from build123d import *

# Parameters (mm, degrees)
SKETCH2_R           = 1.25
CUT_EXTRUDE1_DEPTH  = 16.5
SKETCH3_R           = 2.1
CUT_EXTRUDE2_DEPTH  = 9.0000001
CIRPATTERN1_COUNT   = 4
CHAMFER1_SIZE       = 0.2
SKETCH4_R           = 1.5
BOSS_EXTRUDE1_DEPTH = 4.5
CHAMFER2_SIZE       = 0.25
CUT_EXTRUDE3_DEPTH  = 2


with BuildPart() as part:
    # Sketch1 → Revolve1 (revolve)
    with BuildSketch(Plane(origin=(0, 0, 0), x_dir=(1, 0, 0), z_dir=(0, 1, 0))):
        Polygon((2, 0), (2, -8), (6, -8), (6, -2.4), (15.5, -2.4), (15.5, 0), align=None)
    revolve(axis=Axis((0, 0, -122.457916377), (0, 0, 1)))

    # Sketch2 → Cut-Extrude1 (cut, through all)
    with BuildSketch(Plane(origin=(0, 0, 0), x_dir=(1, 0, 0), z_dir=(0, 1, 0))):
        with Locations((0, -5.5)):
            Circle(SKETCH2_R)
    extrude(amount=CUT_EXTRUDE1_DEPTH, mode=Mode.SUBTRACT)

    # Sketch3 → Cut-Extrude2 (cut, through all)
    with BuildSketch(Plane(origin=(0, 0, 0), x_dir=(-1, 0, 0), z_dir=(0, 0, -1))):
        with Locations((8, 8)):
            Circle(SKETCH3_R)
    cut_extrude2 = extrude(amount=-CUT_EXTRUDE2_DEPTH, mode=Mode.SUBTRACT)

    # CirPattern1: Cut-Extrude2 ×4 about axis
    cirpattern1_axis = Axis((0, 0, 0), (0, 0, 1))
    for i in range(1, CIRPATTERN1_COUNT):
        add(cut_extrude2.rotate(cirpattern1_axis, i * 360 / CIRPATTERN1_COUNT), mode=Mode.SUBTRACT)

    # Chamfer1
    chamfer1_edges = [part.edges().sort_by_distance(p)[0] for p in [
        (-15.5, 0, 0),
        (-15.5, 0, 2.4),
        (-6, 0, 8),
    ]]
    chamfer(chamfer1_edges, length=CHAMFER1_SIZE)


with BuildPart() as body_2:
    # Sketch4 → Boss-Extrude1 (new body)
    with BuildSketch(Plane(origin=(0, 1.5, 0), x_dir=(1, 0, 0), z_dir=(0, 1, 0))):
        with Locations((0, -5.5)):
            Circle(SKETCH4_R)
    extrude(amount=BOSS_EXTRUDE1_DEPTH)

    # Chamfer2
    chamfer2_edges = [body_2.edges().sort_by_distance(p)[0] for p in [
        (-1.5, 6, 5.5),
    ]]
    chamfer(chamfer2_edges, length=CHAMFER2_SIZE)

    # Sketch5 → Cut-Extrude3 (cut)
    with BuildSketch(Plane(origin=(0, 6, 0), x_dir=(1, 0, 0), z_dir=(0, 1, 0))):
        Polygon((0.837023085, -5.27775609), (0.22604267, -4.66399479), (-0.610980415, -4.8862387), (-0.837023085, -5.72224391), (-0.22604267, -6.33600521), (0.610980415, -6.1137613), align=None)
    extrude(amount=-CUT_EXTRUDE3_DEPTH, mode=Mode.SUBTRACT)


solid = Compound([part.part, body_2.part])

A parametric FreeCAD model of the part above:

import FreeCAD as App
import Part
import Sketcher

V = App.Vector
Q = App.Units.Quantity


def edges_at(feature, points):
    """Names of the edges that pass closest to the given points."""
    edges = feature.Shape.Edges
    near = lambda p: min(range(len(edges)), key=lambda i: edges[i].distToShape(Part.Vertex(*p))[0])
    return sorted({f"Edge{near(p) + 1}" for p in points})

doc = App.newDocument("Part")
body = doc.addObject("PartDesign::Body", "Body")

# Sketch on XZ plane
sketch1 = body.newObject("Sketcher::SketchObject", "Sketch")
sketch1.AttachmentSupport = (doc.getObject("XZ_Plane"), [""])
sketch1.MapMode = "FlatFace"
sketch1.addGeometry([
    Part.LineSegment(V(2, 0, 0), V(2, 8, 0)),  # 0
    Part.LineSegment(V(2, 8, 0), V(6, 8, 0)),  # 1
    Part.LineSegment(V(6, 8, 0), V(6, 2.4, 0)),  # 2
    Part.LineSegment(V(6, 2.4, 0), V(15.5, 2.4, 0)),  # 3
    Part.LineSegment(V(15.5, 2.4, 0), V(15.5, 0, 0)),  # 4
    Part.LineSegment(V(15.5, 0, 0), V(2, 0, 0)),  # 5
], False)
sketch1.addConstraint([
    Sketcher.Constraint("Coincident", 0, 2, 1, 1),
    Sketcher.Constraint("Coincident", 1, 2, 2, 1),
    Sketcher.Constraint("Coincident", 2, 2, 3, 1),
    Sketcher.Constraint("Coincident", 3, 2, 4, 1),
    Sketcher.Constraint("Coincident", 4, 2, 5, 1),
    Sketcher.Constraint("Coincident", 5, 2, 0, 1),
    Sketcher.Constraint("Vertical", 0),
    Sketcher.Constraint("Horizontal", 1),
    Sketcher.Constraint("Vertical", 2),
    Sketcher.Constraint("Horizontal", 3),
    Sketcher.Constraint("Vertical", 4),
    Sketcher.Constraint("Horizontal", 5),
    Sketcher.Constraint("PointOnObject", 4, 2, -1),
    Sketcher.Constraint("DistanceX", 1, 1, 1, 2, Q("4 mm")),
    Sketcher.Constraint("DistanceY", 0, 1, 0, 2, Q("8 mm")),
    Sketcher.Constraint("DistanceX", 3, 1, 3, 2, Q("9.5 mm")),
    Sketcher.Constraint("DistanceY", 2, 2, 2, 1, Q("5.6 mm")),
    Sketcher.Constraint("DistanceX", -1, 1, 0, 2, Q("2 mm")),
])
revolution = body.newObject("PartDesign::Revolution", "Revolution")
revolution.Profile = sketch1
revolution.ReferenceAxis = (sketch1, ["V_Axis"])
revolution.Angle = 360

# Sketch on XZ plane
sketch2 = body.newObject("Sketcher::SketchObject", "Sketch001")
sketch2.AttachmentSupport = (doc.getObject("XZ_Plane"), [""])
sketch2.MapMode = "FlatFace"
sketch2.addGeometry(Part.Circle(V(0, 5.5, 0), V(0, 0, 1), 1.2), False)
sketch2.addConstraint([
    Sketcher.Constraint("PointOnObject", 0, 3, -2),
    Sketcher.Constraint("Diameter", 0, Q("2.5 mm")),
    Sketcher.Constraint("DistanceY", -1, 1, 0, 3, Q("5.5 mm")),
])
pocket1 = body.newObject("PartDesign::Pocket", "Pocket")
pocket1.Profile = sketch2
pocket1.Type = "ThroughAll"

# Sketch on XY plane
sketch3 = body.newObject("Sketcher::SketchObject", "Sketch002")
sketch3.AttachmentSupport = (doc.getObject("XY_Plane"), [""])
sketch3.MapMode = "FlatFace"
sketch3.addGeometry(Part.Circle(V(-8, 8, 0), V(0, 0, 1), 2.1), False)
sketch3.addConstraint([
    Sketcher.Constraint("Diameter", 0, Q("4.2 mm")),
    Sketcher.Constraint("DistanceX", 0, 3, -1, 1, Q("8 mm")),
    Sketcher.Constraint("DistanceY", -1, 1, 0, 3, Q("8 mm")),
])
pocket2 = body.newObject("PartDesign::Pocket", "Pocket001")
pocket2.Profile = sketch3
pocket2.Type = "ThroughAll"
pocket2.Reversed = True
doc.recompute()

polarpattern = body.newObject("PartDesign::PolarPattern", "PolarPattern")
polarpattern.Originals = [pocket2]
polarpattern.Axis = (doc.getObject("Z_Axis"), [""])
polarpattern.Angle = 360
polarpattern.Occurrences = 4
body.Tip = polarpattern
doc.recompute()

chamfer = body.newObject("PartDesign::Chamfer", "Chamfer")
chamfer.Base = (polarpattern, edges_at(polarpattern, [(-15.5, 0, 0), (-15.5, 0, 2.4), (-6, 0, 8)]))
chamfer.Size = 0.2
body2 = doc.addObject("PartDesign::Body", "Body001")

# Sketch on XZ plane
sketch4 = body2.newObject("Sketcher::SketchObject", "Sketch003")
sketch4.AttachmentSupport = (doc.getObject("XZ_Plane001"), [""])
sketch4.MapMode = "FlatFace"
sketch4.AttachmentOffset = App.Placement(V(0, 0, -1.5), App.Rotation())
sketch4.addGeometry(Part.Circle(V(0, 5.5, 0), V(0, 0, 1), 1.5), False)
sketch4.addConstraint([
    Sketcher.Constraint("PointOnObject", 0, 3, -2),
    Sketcher.Constraint("Diameter", 0, Q("3 mm")),
    Sketcher.Constraint("DistanceY", -1, 1, 0, 3, Q("5.5 mm")),
])
pad1 = body2.newObject("PartDesign::Pad", "Pad")
pad1.Profile = sketch4
pad1.Length = 4.5
pad1.Reversed = True
doc.recompute()

chamfer2 = body2.newObject("PartDesign::Chamfer", "Chamfer001")
chamfer2.Base = (pad1, edges_at(pad1, [(-1.5, 6, 5.5)]))
chamfer2.Size = 0.25

# Sketch on XZ plane
sketch5 = body2.newObject("Sketcher::SketchObject", "Sketch004")
sketch5.AttachmentSupport = (doc.getObject("XZ_Plane001"), [""])
sketch5.MapMode = "FlatFace"
sketch5.AttachmentOffset = App.Placement(V(0, 0, -6), App.Rotation())
sketch5.addGeometry([
    Part.LineSegment(V(0.8, 5.3, 0), V(0.2, 4.7, 0)),  # 0
    Part.LineSegment(V(0.2, 4.7, 0), V(-0.6, 4.9, 0)),  # 1
    Part.LineSegment(V(-0.6, 4.9, 0), V(-0.8, 5.7, 0)),  # 2
    Part.LineSegment(V(-0.8, 5.7, 0), V(-0.2, 6.3, 0)),  # 3
    Part.LineSegment(V(-0.2, 6.3, 0), V(0.6, 6.1, 0)),  # 4
    Part.LineSegment(V(0.6, 6.1, 0), V(0.8, 5.3, 0)),  # 5
], False)
sketch5.addConstraint([
    Sketcher.Constraint("Coincident", 0, 2, 1, 1),
    Sketcher.Constraint("Coincident", 1, 2, 2, 1),
    Sketcher.Constraint("Coincident", 2, 2, 3, 1),
    Sketcher.Constraint("Coincident", 3, 2, 4, 1),
    Sketcher.Constraint("Coincident", 4, 2, 5, 1),
    Sketcher.Constraint("Coincident", 5, 2, 0, 1),
    Sketcher.Constraint("Parallel", 0, 3),
    Sketcher.Constraint("Parallel", 1, 4),
    Sketcher.Constraint("Parallel", 2, 5),
    Sketcher.Constraint("Equal", 0, 1),
    Sketcher.Constraint("Equal", 1, 2),
    Sketcher.Constraint("Equal", 2, 3),
    Sketcher.Constraint("DistanceX", 1, 2, -1, 1, Q("0.61098 mm")),
    Sketcher.Constraint("DistanceY", -1, 1, 1, 2, Q("4.886239 mm")),
    Sketcher.Constraint("DistanceX", -1, 1, 4, 2, Q("0.61098 mm")),
    Sketcher.Constraint("DistanceY", -1, 1, 4, 2, Q("6.113761 mm")),
    Sketcher.Constraint("DistanceY", 0, 2, 2, 2, Q("1.058249 mm")),
    Sketcher.Constraint("DistanceX", 2, 2, 3, 2, Q("0.61098 mm")),
])
pocket3 = body2.newObject("PartDesign::Pocket", "Pocket002")
pocket3.Profile = sketch5
pocket3.Length = 2
pocket3.Reversed = True

doc.recompute()
